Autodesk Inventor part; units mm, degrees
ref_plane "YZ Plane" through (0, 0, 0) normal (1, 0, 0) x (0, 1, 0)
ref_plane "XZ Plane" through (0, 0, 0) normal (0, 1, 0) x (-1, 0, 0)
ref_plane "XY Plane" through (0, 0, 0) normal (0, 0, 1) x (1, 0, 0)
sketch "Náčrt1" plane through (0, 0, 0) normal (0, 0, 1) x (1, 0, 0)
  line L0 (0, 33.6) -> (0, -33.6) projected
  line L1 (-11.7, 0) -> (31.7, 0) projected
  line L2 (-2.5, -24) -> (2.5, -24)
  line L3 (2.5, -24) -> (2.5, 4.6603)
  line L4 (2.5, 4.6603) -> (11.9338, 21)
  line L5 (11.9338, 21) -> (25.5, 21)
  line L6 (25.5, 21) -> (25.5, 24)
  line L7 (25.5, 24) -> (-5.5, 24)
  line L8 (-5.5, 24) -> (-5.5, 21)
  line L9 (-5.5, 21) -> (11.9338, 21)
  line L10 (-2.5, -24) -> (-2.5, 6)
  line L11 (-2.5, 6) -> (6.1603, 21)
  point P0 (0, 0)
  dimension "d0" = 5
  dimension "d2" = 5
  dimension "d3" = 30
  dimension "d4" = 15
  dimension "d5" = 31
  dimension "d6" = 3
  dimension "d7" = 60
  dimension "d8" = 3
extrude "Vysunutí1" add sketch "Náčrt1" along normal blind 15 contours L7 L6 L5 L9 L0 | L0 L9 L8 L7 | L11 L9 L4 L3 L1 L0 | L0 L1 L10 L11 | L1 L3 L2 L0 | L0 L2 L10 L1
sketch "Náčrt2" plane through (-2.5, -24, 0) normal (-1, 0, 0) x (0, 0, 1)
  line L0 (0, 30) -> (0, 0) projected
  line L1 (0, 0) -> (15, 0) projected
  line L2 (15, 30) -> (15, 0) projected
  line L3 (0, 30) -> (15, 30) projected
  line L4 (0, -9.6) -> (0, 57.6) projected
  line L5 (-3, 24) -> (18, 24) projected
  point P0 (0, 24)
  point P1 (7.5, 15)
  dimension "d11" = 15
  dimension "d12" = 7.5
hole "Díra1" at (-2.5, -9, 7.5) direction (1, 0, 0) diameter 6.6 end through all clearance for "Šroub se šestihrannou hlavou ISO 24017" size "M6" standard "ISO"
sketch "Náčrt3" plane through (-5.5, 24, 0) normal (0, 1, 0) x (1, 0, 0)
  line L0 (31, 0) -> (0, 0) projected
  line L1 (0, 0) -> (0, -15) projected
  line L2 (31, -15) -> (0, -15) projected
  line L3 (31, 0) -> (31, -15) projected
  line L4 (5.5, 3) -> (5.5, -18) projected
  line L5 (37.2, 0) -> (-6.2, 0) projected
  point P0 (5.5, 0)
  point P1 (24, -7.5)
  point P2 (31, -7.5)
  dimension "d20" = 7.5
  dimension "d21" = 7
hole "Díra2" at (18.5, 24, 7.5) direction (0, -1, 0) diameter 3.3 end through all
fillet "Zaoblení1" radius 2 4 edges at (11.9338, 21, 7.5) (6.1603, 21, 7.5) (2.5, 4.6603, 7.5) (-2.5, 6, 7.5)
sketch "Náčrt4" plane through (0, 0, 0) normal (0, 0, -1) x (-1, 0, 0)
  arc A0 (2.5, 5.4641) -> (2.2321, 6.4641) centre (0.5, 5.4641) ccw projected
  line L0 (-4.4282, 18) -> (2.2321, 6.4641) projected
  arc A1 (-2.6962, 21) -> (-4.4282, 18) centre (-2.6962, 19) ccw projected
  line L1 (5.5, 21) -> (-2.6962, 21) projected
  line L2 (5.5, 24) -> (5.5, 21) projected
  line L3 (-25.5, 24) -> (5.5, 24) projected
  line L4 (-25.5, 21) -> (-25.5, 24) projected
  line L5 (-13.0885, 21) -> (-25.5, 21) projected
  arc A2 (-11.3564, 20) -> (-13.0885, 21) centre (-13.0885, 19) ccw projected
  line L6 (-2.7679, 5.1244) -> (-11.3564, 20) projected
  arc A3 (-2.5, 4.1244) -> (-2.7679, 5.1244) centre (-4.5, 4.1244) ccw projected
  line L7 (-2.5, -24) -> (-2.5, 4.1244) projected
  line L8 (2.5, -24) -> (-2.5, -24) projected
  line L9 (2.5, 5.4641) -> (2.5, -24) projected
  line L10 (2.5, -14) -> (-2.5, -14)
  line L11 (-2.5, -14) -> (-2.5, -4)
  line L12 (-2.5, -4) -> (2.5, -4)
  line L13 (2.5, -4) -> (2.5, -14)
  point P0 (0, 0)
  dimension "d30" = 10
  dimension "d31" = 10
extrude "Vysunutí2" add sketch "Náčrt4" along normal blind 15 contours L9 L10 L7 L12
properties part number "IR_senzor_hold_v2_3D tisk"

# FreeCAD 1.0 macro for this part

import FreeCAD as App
import Part
import Sketcher
from FreeCAD import Vector
Q = App.Units.Quantity


def edges_at(feature, points):
    """Names of the edges that pass closest to the given points."""
    edges = feature.Shape.Edges
    near = lambda p: min(range(len(edges)), key=lambda i: edges[i].distToShape(Part.Vertex(*p))[0])
    return sorted({f"Edge{near(p) + 1}" for p in points})

doc = App.newDocument("Part")
body = doc.addObject("PartDesign::Body", "Body")

# Sketch on XY plane
sketch1 = doc.addObject("Sketcher::SketchObject", "Sketch")
body.addObject(sketch1)
sketch1.AttachmentSupport = (doc.XY_Plane, [""])
sketch1.MapMode = "FlatFace"
sketch1.addGeometry([
    Part.LineSegment(Vector(25.5, 24, 0), Vector(-5.5, 24, 0)),  # 0
    Part.LineSegment(Vector(-5.5, 24, 0), Vector(-5.5, 21, 0)),  # 1
    Part.LineSegment(Vector(-5.5, 21, 0), Vector(6.2, 21, 0)),  # 2
    Part.LineSegment(Vector(6.2, 21, 0), Vector(-2.5, 6, 0)),  # 3
    Part.LineSegment(Vector(-2.5, 6, 0), Vector(-2.5, -24, 0)),  # 4
    Part.LineSegment(Vector(-2.5, -24, 0), Vector(2.5, -24, 0)),  # 5
    Part.LineSegment(Vector(2.5, -24, 0), Vector(2.5, 4.7, 0)),  # 6
    Part.LineSegment(Vector(2.5, 4.7, 0), Vector(11.9, 21, 0)),  # 7
    Part.LineSegment(Vector(11.9, 21, 0), Vector(25.5, 21, 0)),  # 8
    Part.LineSegment(Vector(25.5, 21, 0), Vector(25.5, 24, 0)),  # 9
], False)
sketch1.addConstraint([
    Sketcher.Constraint("Coincident", 0, 2, 1, 1),
    Sketcher.Constraint("Coincident", 1, 2, 2, 1),
    Sketcher.Constraint("Coincident", 2, 2, 3, 1),
    Sketcher.Constraint("Coincident", 3, 2, 4, 1),
    Sketcher.Constraint("Coincident", 4, 2, 5, 1),
    Sketcher.Constraint("Coincident", 5, 2, 6, 1),
    Sketcher.Constraint("Coincident", 6, 2, 7, 1),
    Sketcher.Constraint("Coincident", 7, 2, 8, 1),
    Sketcher.Constraint("Coincident", 8, 2, 9, 1),
    Sketcher.Constraint("Coincident", 9, 2, 0, 1),
    Sketcher.Constraint("Horizontal", 0),
    Sketcher.Constraint("Vertical", 1),
    Sketcher.Constraint("Horizontal", 2),
    Sketcher.Constraint("Vertical", 4),
    Sketcher.Constraint("Horizontal", 5),
    Sketcher.Constraint("Vertical", 6),
    Sketcher.Constraint("Horizontal", 8),
    Sketcher.Constraint("Vertical", 9),
    Sketcher.Constraint("Parallel", 3, 7),
    Sketcher.Constraint("Horizontal", 2, 2, 7, 2),
    Sketcher.Constraint("DistanceX", 0, 2, 0, 1, Q("31 mm")),
    Sketcher.Constraint("DistanceX", 5, 1, 5, 2, Q("5 mm")),
    Sketcher.Constraint("DistanceY", 1, 2, 1, 1, Q("3 mm")),
    Sketcher.Constraint("DistanceY", 4, 2, 4, 1, Q("30 mm")),
    Sketcher.Constraint("Angle", 7, Q("59.9998 deg")),
    Sketcher.Constraint("DistanceX", 1, 2, 3, 2, Q("3 mm")),
    Sketcher.Constraint("DistanceY", 3, 2, 1, 2, Q("15 mm")),
    Sketcher.Constraint("DistanceY", -1, 1, 0, 2, Q("24 mm")),
    Sketcher.Constraint("DistanceX", 0, 2, -1, 1, Q("5.5 mm")),
    Sketcher.Constraint("DistanceX", 8, 1, 8, 2, Q("13.5662 mm")),
])
pad1 = doc.addObject("PartDesign::Pad", "Pad")
body.addObject(pad1)
pad1.Profile = sketch1
pad1.Length = 15

# Sketch on YZ plane
sketch2 = doc.addObject("Sketcher::SketchObject", "Sketch001")
body.addObject(sketch2)
sketch2.AttachmentSupport = (doc.YZ_Plane, [""])
sketch2.MapMode = "FlatFace"
sketch2.AttachmentOffset = App.Placement(Vector(0, 0, -2.5), App.Rotation())
sketch2.addGeometry(Part.Circle(Vector(-9, 7.5, 0), Vector(0, 0, 1), 3.3), False)
sketch2.addConstraint([
    Sketcher.Constraint("Diameter", 0, Q("6.6 mm")),
    Sketcher.Constraint("DistanceX", 0, 3, -1, 1, Q("9 mm")),
    Sketcher.Constraint("DistanceY", -1, 1, 0, 3, Q("7.5 mm")),
])
doc.recompute()
hole = doc.addObject("PartDesign::Hole", "Hole")
body.addObject(hole)
hole.Profile = sketch2
hole.ThreadType = "None"
hole.Diameter = 6.6
hole.DepthType = "ThroughAll"
hole.Reversed = True

# Sketch on XZ plane
sketch3 = doc.addObject("Sketcher::SketchObject", "Sketch002")
body.addObject(sketch3)
sketch3.AttachmentSupport = (doc.XZ_Plane, [""])
sketch3.MapMode = "FlatFace"
sketch3.AttachmentOffset = App.Placement(Vector(0, 0, -24), App.Rotation())
sketch3.addGeometry(Part.Circle(Vector(18.5, 7.5, 0), Vector(0, 0, 1), 1.6), False)
sketch3.addConstraint([
    Sketcher.Constraint("Diameter", 0, Q("3.3 mm")),
    Sketcher.Constraint("DistanceX", -1, 1, 0, 3, Q("18.5 mm")),
    Sketcher.Constraint("DistanceY", -1, 1, 0, 3, Q("7.5 mm")),
])
doc.recompute()
hole2 = doc.addObject("PartDesign::Hole", "Hole001")
body.addObject(hole2)
hole2.Profile = sketch3
hole2.ThreadType = "None"
hole2.Diameter = 3.3
hole2.DepthType = "ThroughAll"
hole2.Reversed = True
doc.recompute()

fillet = doc.addObject("PartDesign::Fillet", "Fillet")
body.addObject(fillet)
fillet.Base = (hole2, edges_at(hole2, [
    (11.934, 21, 7.5),
    (6.16, 21, 7.5),
    (2.5, 4.66, 7.5),
    (-2.5, 6, 7.5),
]))
fillet.Radius = 2

# Sketch on XY plane
sketch4 = doc.addObject("Sketcher::SketchObject", "Sketch003")
body.addObject(sketch4)
sketch4.AttachmentSupport = (doc.XY_Plane, [""])
sketch4.MapMode = "FlatFace"
sketch4.addGeometry([
    Part.LineSegment(Vector(-2, -14, 0), Vector(-2, -4, 0)),
    Part.LineSegment(Vector(-2, -4, 0), Vector(2, -4, 0)),
    Part.LineSegment(Vector(2, -4, 0), Vector(2, -14, 0)),
    Part.LineSegment(Vector(2, -14, 0), Vector(-2, -14, 0)),
], False)
sketch4.addConstraint([
    Sketcher.Constraint("Coincident", 0, 2, 1, 1),
    Sketcher.Constraint("Coincident", 1, 2, 2, 1),
    Sketcher.Constraint("Coincident", 2, 2, 3, 1),
    Sketcher.Constraint("Coincident", 3, 2, 0, 1),
    Sketcher.Constraint("Vertical", 0),
    Sketcher.Constraint("Horizontal", 1),
    Sketcher.Constraint("Vertical", 2),
    Sketcher.Constraint("Horizontal", 3),
    Sketcher.Constraint("DistanceY", 0, 1, 0, 2, Q("10 mm")),
    Sketcher.Constraint("DistanceX", 1, 1, 1, 2, Q("5 mm")),
    Sketcher.Constraint("DistanceY", 0, 2, -1, 1, Q("4 mm")),
    Sketcher.Constraint("DistanceX", 0, 2, -1, 1, Q("2.5 mm")),
])
pad2 = doc.addObject("PartDesign::Pad", "Pad001")
body.addObject(pad2)
pad2.Profile = sketch4
pad2.Length = 15
pad2.Reversed = True

doc.recompute()
